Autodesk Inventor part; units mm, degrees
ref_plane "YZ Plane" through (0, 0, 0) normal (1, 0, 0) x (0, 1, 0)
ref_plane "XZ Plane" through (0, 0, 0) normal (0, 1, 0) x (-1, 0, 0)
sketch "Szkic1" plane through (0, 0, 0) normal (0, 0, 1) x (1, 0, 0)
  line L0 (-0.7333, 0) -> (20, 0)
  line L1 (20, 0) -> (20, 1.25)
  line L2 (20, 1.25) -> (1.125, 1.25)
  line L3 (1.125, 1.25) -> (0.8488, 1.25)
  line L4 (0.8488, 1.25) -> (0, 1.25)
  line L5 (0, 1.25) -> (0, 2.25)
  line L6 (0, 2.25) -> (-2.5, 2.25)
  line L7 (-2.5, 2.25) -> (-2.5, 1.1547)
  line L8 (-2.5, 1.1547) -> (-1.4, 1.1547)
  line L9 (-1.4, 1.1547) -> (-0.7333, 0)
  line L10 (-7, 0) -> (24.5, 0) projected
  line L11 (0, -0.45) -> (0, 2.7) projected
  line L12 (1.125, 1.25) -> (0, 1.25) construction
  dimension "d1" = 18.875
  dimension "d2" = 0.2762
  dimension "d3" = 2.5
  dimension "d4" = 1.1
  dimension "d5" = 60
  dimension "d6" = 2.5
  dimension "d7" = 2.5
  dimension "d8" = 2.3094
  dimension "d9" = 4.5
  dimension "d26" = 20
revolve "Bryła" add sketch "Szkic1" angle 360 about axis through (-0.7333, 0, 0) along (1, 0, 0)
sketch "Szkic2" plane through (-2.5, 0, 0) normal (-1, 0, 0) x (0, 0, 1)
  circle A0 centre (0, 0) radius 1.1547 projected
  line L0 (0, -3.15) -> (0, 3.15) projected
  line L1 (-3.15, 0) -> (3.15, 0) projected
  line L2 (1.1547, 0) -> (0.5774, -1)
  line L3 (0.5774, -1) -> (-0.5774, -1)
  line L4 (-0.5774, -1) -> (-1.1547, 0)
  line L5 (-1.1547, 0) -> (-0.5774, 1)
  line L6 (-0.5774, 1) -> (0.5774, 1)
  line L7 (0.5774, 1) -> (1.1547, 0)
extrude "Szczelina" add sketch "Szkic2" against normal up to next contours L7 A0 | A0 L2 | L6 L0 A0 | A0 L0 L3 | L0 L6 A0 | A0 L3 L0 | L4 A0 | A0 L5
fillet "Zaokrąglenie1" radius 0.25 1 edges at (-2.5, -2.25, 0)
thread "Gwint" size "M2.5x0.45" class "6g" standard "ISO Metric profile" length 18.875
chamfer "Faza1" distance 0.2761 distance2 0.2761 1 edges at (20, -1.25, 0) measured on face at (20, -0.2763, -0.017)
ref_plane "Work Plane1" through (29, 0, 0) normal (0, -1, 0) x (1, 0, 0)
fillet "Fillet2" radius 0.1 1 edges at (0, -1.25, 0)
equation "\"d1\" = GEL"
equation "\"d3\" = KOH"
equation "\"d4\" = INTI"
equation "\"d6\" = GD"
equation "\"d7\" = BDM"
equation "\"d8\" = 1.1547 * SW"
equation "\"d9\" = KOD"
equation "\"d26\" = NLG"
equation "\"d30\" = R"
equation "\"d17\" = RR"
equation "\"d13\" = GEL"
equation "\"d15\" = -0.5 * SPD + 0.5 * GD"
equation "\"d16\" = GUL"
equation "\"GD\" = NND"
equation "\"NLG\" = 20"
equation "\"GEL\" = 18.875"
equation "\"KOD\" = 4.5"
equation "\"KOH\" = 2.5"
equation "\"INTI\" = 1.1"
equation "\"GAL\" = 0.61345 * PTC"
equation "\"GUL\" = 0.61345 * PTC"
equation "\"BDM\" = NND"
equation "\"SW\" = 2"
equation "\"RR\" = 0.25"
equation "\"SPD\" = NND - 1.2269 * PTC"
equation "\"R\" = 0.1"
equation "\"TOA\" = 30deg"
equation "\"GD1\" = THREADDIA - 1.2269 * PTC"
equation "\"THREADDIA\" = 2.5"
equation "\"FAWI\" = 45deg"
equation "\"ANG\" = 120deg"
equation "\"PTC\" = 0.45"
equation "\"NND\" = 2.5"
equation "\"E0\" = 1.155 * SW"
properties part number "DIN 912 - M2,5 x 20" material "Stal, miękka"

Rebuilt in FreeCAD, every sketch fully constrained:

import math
import FreeCAD as App
import Part
import Sketcher
from FreeCAD import Vector


def edges_at(feature, points):
    """Names of the edges that pass closest to the given points."""
    edges = feature.Shape.Edges
    near = lambda p: min(range(len(edges)), key=lambda i: edges[i].distToShape(Part.Vertex(*p))[0])
    return sorted({f"Edge{near(p) + 1}" for p in points})

doc = App.newDocument("Part")
params = doc.addObject("Spreadsheet::Sheet", "Params")
for row, (alias, value) in enumerate([
    ("sketch1_width", "20 mm"),
    ("sketch1_width2", "2.5 mm"),
    ("sketch1_width3", "1.1 mm"),
    ("sketch1_height", "1 mm"),
    ("sketch1_height2", "1.25 mm"),
    ("revolution_angle", "360 deg"),
    ("fillet_radius", "0.25 mm"),
    ("chamfer_size", "0.2761 mm"),
    ("chamfer_size2", "0.2761 mm"),
    ("fillet2_radius", "0.1 mm"),
], start=1):
    params.set(f"A{row}", alias)
    params.set(f"B{row}", "=" + value)
    params.setAlias(f"B{row}", alias)

body = doc.addObject("PartDesign::Body", "Body")

sketch1 = doc.addObject("Sketcher::SketchObject", "Sketch")
body.addObject(sketch1)
sketch1.AttachmentSupport = (doc.XY_Plane, [""])
sketch1.MapMode = "FlatFace"
sketch1.addGeometry([
    Part.LineSegment(Vector(-1.4, 1.1547, 0), Vector(-0.7333, 0, 0)),
    Part.LineSegment(Vector(-0.7333, 0, 0), Vector(20, 0, 0)),
    Part.LineSegment(Vector(20, 0, 0), Vector(20, 1.25, 0)),
    Part.LineSegment(Vector(20, 1.25, 0), Vector(0, 1.25, 0)),
    Part.LineSegment(Vector(0, 1.25, 0), Vector(0, 2.25, 0)),
    Part.LineSegment(Vector(0, 2.25, 0), Vector(-2.5, 2.25, 0)),
    Part.LineSegment(Vector(-2.5, 2.25, 0), Vector(-2.5, 1.1547, 0)),
    Part.LineSegment(Vector(-2.5, 1.1547, 0), Vector(-1.4, 1.1547, 0)),
], False)
sketch1.addConstraint([
    Sketcher.Constraint("Coincident", 0, 2, 1, 1),
    Sketcher.Constraint("Coincident", 1, 2, 2, 1),
    Sketcher.Constraint("Coincident", 2, 2, 3, 1),
    Sketcher.Constraint("Coincident", 3, 2, 4, 1),
    Sketcher.Constraint("Coincident", 4, 2, 5, 1),
    Sketcher.Constraint("Coincident", 5, 2, 6, 1),
    Sketcher.Constraint("Coincident", 6, 2, 7, 1),
    Sketcher.Constraint("Coincident", 7, 2, 0, 1),
    Sketcher.Constraint("Horizontal", 1),
    Sketcher.Constraint("Vertical", 2),
    Sketcher.Constraint("Horizontal", 3),
    Sketcher.Constraint("Vertical", 4),
    Sketcher.Constraint("Horizontal", 5),
    Sketcher.Constraint("Vertical", 6),
    Sketcher.Constraint("Horizontal", 7),
    Sketcher.Constraint("PointOnObject", 0, 2, -1),
    Sketcher.Constraint("PointOnObject", 3, 2, -2),
    Sketcher.Constraint("DistanceX", 3, 2, 3, 1, 20.0),
    Sketcher.Constraint("DistanceX", 5, 2, 5, 1, 2.5),
    Sketcher.Constraint("DistanceX", 7, 1, 7, 2, 1.1),
    Sketcher.Constraint("DistanceY", 4, 1, 4, 2, 1.0),
    Sketcher.Constraint("DistanceY", 2, 1, 2, 2, 1.25),
    Sketcher.Constraint("DistanceX", 1, 1, 1, 2, 20.7333),
    Sketcher.Constraint("DistanceY", 6, 2, 6, 1, 1.0953),
])
sketch1.setExpression("Constraints[17]", "Params.sketch1_width")
sketch1.setExpression("Constraints[18]", "Params.sketch1_width2")
sketch1.setExpression("Constraints[19]", "Params.sketch1_width3")
sketch1.setExpression("Constraints[20]", "Params.sketch1_height")
sketch1.setExpression("Constraints[21]", "Params.sketch1_height2")
revolution = doc.addObject("PartDesign::Revolution", "Revolution")
body.addObject(revolution)
revolution.Profile = sketch1
revolution.ReferenceAxis = (sketch1, ["H_Axis"])
revolution.setExpression("Angle", "Params.revolution_angle")

sketch2 = doc.addObject("Sketcher::SketchObject", "Sketch001")
body.addObject(sketch2)
sketch2.AttachmentSupport = (doc.YZ_Plane, [""])
sketch2.MapMode = "FlatFace"
sketch2.AttachmentOffset = App.Placement(Vector(0, 0, -2.5), App.Rotation())
sketch2.addGeometry([
    Part.LineSegment(Vector(1, 0.5774, 0), Vector(0, 1.1547, 0)),
    Part.ArcOfCircle(Part.Circle(Vector(0, 0, 0), Vector(0, 0, 1), 1.1547), math.radians(30.002137), math.radians(90)),
    Part.ArcOfCircle(Part.Circle(Vector(0, 0, 0), Vector(0, 0, 1), 1.1547), math.radians(90), math.radians(149.997863)),
    Part.LineSegment(Vector(0, 1.1547, 0), Vector(-1, 0.5774, 0)),
    Part.ArcOfCircle(Part.Circle(Vector(0, 0, 0), Vector(0, 0, 1), 1.1547), math.radians(-30.002137), math.radians(30.002137)),
    Part.LineSegment(Vector(1, 0.5774, 0), Vector(1, -0.5774, 0)),
    Part.LineSegment(Vector(-1, 0.5774, 0), Vector(-1, -0.5774, 0)),
    Part.ArcOfCircle(Part.Circle(Vector(0, 0, 0), Vector(0, 0, 1), 1.1547), math.radians(149.997863), math.radians(210.002137)),
    Part.LineSegment(Vector(-1, -0.5774, 0), Vector(0, -1.1547, 0)),
    Part.ArcOfCircle(Part.Circle(Vector(0, 0, 0), Vector(0, 0, 1), 1.1547), math.radians(-149.997863), math.radians(-90)),
    Part.ArcOfCircle(Part.Circle(Vector(0, 0, 0), Vector(0, 0, 1), 1.1547), math.radians(-90), math.radians(-30.002137)),
    Part.LineSegment(Vector(0, -1.1547, 0), Vector(1, -0.5774, 0)),
], False)
sketch2.addConstraint([
    Sketcher.Constraint("Coincident", 0, 1, 1, 1),
    Sketcher.Constraint("Coincident", 1, 2, 0, 2),
    Sketcher.Constraint("Coincident", 2, 1, 3, 1),
    Sketcher.Constraint("Coincident", 3, 2, 2, 2),
    Sketcher.Constraint("Coincident", 4, 1, 5, 2),
    Sketcher.Constraint("Coincident", 5, 1, 4, 2),
    Sketcher.Constraint("Coincident", 6, 1, 7, 1),
    Sketcher.Constraint("Coincident", 7, 2, 6, 2),
    Sketcher.Constraint("Coincident", 8, 1, 9, 1),
    Sketcher.Constraint("Coincident", 9, 2, 8, 2),
    Sketcher.Constraint("Coincident", 10, 1, 11, 1),
    Sketcher.Constraint("Coincident", 11, 2, 10, 2),
    Sketcher.Constraint("Vertical", 5),
    Sketcher.Constraint("Vertical", 6),
    Sketcher.Constraint("Coincident", 1, 3, -1, 1),
    Sketcher.Constraint("Coincident", 2, 3, -1, 1),
    Sketcher.Constraint("Coincident", 4, 3, -1, 1),
    Sketcher.Constraint("Coincident", 7, 3, -1, 1),
    Sketcher.Constraint("Coincident", 9, 3, -1, 1),
    Sketcher.Constraint("Coincident", 10, 3, -1, 1),
    Sketcher.Constraint("Coincident", 2, 1, 1, 2),
    Sketcher.Constraint("Coincident", 5, 1, 0, 1),
    Sketcher.Constraint("Coincident", 6, 1, 3, 2),
    Sketcher.Constraint("Coincident", 8, 1, 7, 2),
    Sketcher.Constraint("Coincident", 10, 1, 9, 2),
    Sketcher.Constraint("PointOnObject", 1, 2, -2),
    Sketcher.Constraint("PointOnObject", 9, 2, -2),
    Sketcher.Constraint("Parallel", 0, 8),
    Sketcher.Constraint("Parallel", 3, 11),
    Sketcher.Constraint("DistanceX", -1, 1, 0, 1, 1.0),
    Sketcher.Constraint("Radius", 1, 1.1547),
])
pad1 = doc.addObject("PartDesign::Pad", "Pad")
body.addObject(pad1)
pad1.Profile = sketch2
pad1.Type = "UpToFirst"
doc.recompute()

fillet = doc.addObject("PartDesign::Fillet", "Fillet")
body.addObject(fillet)
fillet.Base = (pad1, edges_at(pad1, [(-2.5, -2.25, 0)]))
fillet.setExpression("Radius", "Params.fillet_radius")
doc.recompute()

chamfer = doc.addObject("PartDesign::Chamfer", "Chamfer")
body.addObject(chamfer)
chamfer.Base = (fillet, edges_at(fillet, [(20, -1.25, 0)]))
chamfer.ChamferType = "Two distances"
chamfer.setExpression("Size", "Params.chamfer_size")
chamfer.setExpression("Size2", "Params.chamfer_size2")
doc.recompute()

fillet2 = doc.addObject("PartDesign::Fillet", "Fillet001")
body.addObject(fillet2)
fillet2.Base = (chamfer, edges_at(chamfer, [(0, -1.25, 0)]))
fillet2.setExpression("Radius", "Params.fillet2_radius")

doc.recompute()
